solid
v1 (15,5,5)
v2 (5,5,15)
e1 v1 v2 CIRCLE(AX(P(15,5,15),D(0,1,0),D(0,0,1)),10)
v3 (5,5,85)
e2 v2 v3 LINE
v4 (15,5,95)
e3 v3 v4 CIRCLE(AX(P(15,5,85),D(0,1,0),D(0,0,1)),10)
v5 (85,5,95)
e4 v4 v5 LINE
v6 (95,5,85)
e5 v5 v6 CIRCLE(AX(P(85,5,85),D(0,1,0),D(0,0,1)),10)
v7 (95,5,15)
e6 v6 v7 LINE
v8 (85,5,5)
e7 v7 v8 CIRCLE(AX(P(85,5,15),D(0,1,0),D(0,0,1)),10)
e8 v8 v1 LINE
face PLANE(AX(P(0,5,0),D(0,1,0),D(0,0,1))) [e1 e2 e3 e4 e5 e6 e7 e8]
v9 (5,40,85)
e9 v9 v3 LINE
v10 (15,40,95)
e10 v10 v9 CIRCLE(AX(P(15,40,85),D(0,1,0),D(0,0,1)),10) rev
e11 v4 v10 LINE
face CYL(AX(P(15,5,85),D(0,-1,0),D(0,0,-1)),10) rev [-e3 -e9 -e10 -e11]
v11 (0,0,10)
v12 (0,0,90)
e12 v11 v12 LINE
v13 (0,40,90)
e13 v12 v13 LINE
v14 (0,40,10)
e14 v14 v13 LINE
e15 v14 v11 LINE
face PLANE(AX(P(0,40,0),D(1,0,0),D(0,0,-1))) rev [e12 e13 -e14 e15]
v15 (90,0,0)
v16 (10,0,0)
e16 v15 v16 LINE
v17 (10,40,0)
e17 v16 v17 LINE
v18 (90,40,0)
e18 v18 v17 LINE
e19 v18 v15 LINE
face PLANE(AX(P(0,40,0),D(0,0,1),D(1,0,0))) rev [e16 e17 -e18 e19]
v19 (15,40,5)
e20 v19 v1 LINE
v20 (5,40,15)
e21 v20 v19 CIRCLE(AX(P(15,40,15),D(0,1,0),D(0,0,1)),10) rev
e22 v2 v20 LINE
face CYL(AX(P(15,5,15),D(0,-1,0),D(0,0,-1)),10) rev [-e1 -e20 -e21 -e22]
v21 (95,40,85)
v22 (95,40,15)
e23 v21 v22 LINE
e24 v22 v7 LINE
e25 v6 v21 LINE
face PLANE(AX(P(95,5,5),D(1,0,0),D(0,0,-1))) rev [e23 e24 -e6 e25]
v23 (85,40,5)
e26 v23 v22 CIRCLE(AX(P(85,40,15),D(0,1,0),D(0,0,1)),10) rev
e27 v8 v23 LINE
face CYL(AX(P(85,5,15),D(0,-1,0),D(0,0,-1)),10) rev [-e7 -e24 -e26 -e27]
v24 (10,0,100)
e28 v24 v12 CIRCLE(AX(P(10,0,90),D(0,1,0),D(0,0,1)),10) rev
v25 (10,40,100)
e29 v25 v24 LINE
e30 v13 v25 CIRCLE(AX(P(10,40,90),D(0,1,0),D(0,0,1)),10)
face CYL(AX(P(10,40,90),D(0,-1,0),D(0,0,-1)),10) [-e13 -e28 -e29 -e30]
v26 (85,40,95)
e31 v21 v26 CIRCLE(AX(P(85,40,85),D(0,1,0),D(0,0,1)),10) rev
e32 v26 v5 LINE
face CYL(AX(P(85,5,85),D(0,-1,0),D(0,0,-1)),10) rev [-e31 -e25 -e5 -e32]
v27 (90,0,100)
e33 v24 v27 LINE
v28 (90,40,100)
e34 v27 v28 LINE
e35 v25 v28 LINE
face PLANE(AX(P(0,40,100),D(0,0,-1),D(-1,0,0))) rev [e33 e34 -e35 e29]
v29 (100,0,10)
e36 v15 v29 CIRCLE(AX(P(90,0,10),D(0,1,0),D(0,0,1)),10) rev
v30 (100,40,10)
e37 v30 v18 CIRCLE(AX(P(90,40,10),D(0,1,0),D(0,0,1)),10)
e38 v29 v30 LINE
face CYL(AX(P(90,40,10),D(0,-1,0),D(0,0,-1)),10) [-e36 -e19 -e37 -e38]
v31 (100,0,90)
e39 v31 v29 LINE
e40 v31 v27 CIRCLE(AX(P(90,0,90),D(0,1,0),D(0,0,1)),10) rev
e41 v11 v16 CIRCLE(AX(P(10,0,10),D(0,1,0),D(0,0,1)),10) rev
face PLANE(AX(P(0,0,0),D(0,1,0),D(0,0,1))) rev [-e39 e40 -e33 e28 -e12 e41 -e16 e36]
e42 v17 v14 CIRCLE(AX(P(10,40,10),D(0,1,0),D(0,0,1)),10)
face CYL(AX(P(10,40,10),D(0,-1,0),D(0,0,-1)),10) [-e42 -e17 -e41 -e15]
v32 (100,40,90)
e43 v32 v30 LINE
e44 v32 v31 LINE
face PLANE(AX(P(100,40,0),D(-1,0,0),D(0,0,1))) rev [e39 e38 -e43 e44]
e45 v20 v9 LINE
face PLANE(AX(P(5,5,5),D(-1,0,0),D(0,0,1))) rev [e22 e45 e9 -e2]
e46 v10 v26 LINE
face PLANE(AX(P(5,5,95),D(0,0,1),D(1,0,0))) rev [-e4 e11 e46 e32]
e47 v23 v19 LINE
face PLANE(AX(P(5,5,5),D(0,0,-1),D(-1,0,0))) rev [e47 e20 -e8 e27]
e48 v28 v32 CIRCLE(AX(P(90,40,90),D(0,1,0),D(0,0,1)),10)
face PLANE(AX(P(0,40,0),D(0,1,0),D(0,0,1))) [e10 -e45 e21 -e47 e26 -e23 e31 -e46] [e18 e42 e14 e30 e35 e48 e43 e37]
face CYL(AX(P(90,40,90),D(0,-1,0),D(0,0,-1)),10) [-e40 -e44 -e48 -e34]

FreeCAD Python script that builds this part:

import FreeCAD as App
import Part
import Sketcher


def edges_at(feature, points):
    """Names of the edges that pass closest to the given points."""
    edges = feature.Shape.Edges
    near = lambda p: min(range(len(edges)), key=lambda i: edges[i].distToShape(Part.Vertex(*p))[0])
    return sorted({f"Edge{near(p) + 1}" for p in points})

doc = App.newDocument("Part")
params = doc.addObject("Spreadsheet::Sheet", "Params")
for row, (alias, value) in enumerate([
    ("sketch1_width", "100 mm"),
    ("pad1_length", "40 mm"),
    ("sketch2_width", "90 mm"),
    ("pocket1_length", "35 mm"),
    ("fillet_radius", "10 mm"),
], start=1):
    params.set(f"A{row}", alias)
    params.set(f"B{row}", "=" + value)
    params.setAlias(f"B{row}", alias)

body = doc.addObject("PartDesign::Body", "Body")

sketch1 = body.newObject("Sketcher::SketchObject", "Sketch")
sketch1.AttachmentSupport = (doc.getObject("XZ_Plane"), [""])
sketch1.MapMode = "FlatFace"
sketch1.addGeometry(Part.LineSegment(App.Vector(0, 0, 0), App.Vector(0, 100, 0)), False)
sketch1.addGeometry(Part.LineSegment(App.Vector(0, 100, 0), App.Vector(100, 100, 0)), False)
sketch1.addGeometry(Part.LineSegment(App.Vector(100, 100, 0), App.Vector(100, 0, 0)), False)
sketch1.addGeometry(Part.LineSegment(App.Vector(100, 0, 0), App.Vector(0, 0, 0)), False)
sketch1.addConstraint(Sketcher.Constraint("Coincident", 0, 2, 1, 1))
sketch1.addConstraint(Sketcher.Constraint("Coincident", 1, 2, 2, 1))
sketch1.addConstraint(Sketcher.Constraint("Coincident", 2, 2, 3, 1))
sketch1.addConstraint(Sketcher.Constraint("Coincident", 3, 2, 0, 1))
sketch1.addConstraint(Sketcher.Constraint("Vertical", 0))
sketch1.addConstraint(Sketcher.Constraint("Horizontal", 1))
sketch1.addConstraint(Sketcher.Constraint("Vertical", 2))
sketch1.addConstraint(Sketcher.Constraint("Horizontal", 3))
sketch1.addConstraint(Sketcher.Constraint("Coincident", 3, 2, -1, 1))
sketch1.addConstraint(Sketcher.Constraint("Equal", 3, 0))
sketch1.addConstraint(Sketcher.Constraint("DistanceX", 1, 1, 1, 2, 100.0))
sketch1.setExpression("Constraints[10]", "Params.sketch1_width")
pad1 = body.newObject("PartDesign::Pad", "Pad")
pad1.Profile = sketch1
pad1.setExpression("Length", "Params.pad1_length")
pad1.Reversed = True

sketch2 = body.newObject("Sketcher::SketchObject", "Sketch001")
sketch2.AttachmentSupport = (doc.getObject("XZ_Plane"), [""])
sketch2.MapMode = "FlatFace"
sketch2.AttachmentOffset = App.Placement(App.Vector(0, 0, -40), App.Rotation())
sketch2.addGeometry(Part.LineSegment(App.Vector(5, 5, 0), App.Vector(5, 95, 0)), False)
sketch2.addGeometry(Part.LineSegment(App.Vector(5, 95, 0), App.Vector(95, 95, 0)), False)
sketch2.addGeometry(Part.LineSegment(App.Vector(95, 95, 0), App.Vector(95, 5, 0)), False)
sketch2.addGeometry(Part.LineSegment(App.Vector(95, 5, 0), App.Vector(5, 5, 0)), False)
sketch2.addConstraint(Sketcher.Constraint("Coincident", 0, 2, 1, 1))
sketch2.addConstraint(Sketcher.Constraint("Coincident", 1, 2, 2, 1))
sketch2.addConstraint(Sketcher.Constraint("Coincident", 2, 2, 3, 1))
sketch2.addConstraint(Sketcher.Constraint("Coincident", 3, 2, 0, 1))
sketch2.addConstraint(Sketcher.Constraint("Vertical", 0))
sketch2.addConstraint(Sketcher.Constraint("Horizontal", 1))
sketch2.addConstraint(Sketcher.Constraint("Vertical", 2))
sketch2.addConstraint(Sketcher.Constraint("Horizontal", 3))
sketch2.addConstraint(Sketcher.Constraint("Equal", 3, 0))
sketch2.addConstraint(Sketcher.Constraint("DistanceX", 1, 1, 1, 2, 90.0))
sketch2.addConstraint(Sketcher.Constraint("DistanceX", -1, 1, 0, 2, 5.0))
sketch2.addConstraint(Sketcher.Constraint("DistanceY", -1, 1, 0, 2, 95.0))
sketch2.setExpression("Constraints[9]", "Params.sketch2_width")
pocket1 = body.newObject("PartDesign::Pocket", "Pocket")
pocket1.Profile = sketch2
pocket1.setExpression("Length", "Params.pocket1_length")
pocket1.Reversed = True
doc.recompute()

fillet = body.newObject("PartDesign::Fillet", "Fillet")
fillet.Base = (pocket1, edges_at(pocket1, [
    (5, 22.5, 95),
    (5, 22.5, 5),
    (95, 22.5, 5),
    (95, 22.5, 95),
    (0, 20, 0),
    (100, 20, 0),
    (100, 20, 100),
    (0, 20, 100),
]))
fillet.setExpression("Radius", "Params.fillet_radius")

doc.recompute()
